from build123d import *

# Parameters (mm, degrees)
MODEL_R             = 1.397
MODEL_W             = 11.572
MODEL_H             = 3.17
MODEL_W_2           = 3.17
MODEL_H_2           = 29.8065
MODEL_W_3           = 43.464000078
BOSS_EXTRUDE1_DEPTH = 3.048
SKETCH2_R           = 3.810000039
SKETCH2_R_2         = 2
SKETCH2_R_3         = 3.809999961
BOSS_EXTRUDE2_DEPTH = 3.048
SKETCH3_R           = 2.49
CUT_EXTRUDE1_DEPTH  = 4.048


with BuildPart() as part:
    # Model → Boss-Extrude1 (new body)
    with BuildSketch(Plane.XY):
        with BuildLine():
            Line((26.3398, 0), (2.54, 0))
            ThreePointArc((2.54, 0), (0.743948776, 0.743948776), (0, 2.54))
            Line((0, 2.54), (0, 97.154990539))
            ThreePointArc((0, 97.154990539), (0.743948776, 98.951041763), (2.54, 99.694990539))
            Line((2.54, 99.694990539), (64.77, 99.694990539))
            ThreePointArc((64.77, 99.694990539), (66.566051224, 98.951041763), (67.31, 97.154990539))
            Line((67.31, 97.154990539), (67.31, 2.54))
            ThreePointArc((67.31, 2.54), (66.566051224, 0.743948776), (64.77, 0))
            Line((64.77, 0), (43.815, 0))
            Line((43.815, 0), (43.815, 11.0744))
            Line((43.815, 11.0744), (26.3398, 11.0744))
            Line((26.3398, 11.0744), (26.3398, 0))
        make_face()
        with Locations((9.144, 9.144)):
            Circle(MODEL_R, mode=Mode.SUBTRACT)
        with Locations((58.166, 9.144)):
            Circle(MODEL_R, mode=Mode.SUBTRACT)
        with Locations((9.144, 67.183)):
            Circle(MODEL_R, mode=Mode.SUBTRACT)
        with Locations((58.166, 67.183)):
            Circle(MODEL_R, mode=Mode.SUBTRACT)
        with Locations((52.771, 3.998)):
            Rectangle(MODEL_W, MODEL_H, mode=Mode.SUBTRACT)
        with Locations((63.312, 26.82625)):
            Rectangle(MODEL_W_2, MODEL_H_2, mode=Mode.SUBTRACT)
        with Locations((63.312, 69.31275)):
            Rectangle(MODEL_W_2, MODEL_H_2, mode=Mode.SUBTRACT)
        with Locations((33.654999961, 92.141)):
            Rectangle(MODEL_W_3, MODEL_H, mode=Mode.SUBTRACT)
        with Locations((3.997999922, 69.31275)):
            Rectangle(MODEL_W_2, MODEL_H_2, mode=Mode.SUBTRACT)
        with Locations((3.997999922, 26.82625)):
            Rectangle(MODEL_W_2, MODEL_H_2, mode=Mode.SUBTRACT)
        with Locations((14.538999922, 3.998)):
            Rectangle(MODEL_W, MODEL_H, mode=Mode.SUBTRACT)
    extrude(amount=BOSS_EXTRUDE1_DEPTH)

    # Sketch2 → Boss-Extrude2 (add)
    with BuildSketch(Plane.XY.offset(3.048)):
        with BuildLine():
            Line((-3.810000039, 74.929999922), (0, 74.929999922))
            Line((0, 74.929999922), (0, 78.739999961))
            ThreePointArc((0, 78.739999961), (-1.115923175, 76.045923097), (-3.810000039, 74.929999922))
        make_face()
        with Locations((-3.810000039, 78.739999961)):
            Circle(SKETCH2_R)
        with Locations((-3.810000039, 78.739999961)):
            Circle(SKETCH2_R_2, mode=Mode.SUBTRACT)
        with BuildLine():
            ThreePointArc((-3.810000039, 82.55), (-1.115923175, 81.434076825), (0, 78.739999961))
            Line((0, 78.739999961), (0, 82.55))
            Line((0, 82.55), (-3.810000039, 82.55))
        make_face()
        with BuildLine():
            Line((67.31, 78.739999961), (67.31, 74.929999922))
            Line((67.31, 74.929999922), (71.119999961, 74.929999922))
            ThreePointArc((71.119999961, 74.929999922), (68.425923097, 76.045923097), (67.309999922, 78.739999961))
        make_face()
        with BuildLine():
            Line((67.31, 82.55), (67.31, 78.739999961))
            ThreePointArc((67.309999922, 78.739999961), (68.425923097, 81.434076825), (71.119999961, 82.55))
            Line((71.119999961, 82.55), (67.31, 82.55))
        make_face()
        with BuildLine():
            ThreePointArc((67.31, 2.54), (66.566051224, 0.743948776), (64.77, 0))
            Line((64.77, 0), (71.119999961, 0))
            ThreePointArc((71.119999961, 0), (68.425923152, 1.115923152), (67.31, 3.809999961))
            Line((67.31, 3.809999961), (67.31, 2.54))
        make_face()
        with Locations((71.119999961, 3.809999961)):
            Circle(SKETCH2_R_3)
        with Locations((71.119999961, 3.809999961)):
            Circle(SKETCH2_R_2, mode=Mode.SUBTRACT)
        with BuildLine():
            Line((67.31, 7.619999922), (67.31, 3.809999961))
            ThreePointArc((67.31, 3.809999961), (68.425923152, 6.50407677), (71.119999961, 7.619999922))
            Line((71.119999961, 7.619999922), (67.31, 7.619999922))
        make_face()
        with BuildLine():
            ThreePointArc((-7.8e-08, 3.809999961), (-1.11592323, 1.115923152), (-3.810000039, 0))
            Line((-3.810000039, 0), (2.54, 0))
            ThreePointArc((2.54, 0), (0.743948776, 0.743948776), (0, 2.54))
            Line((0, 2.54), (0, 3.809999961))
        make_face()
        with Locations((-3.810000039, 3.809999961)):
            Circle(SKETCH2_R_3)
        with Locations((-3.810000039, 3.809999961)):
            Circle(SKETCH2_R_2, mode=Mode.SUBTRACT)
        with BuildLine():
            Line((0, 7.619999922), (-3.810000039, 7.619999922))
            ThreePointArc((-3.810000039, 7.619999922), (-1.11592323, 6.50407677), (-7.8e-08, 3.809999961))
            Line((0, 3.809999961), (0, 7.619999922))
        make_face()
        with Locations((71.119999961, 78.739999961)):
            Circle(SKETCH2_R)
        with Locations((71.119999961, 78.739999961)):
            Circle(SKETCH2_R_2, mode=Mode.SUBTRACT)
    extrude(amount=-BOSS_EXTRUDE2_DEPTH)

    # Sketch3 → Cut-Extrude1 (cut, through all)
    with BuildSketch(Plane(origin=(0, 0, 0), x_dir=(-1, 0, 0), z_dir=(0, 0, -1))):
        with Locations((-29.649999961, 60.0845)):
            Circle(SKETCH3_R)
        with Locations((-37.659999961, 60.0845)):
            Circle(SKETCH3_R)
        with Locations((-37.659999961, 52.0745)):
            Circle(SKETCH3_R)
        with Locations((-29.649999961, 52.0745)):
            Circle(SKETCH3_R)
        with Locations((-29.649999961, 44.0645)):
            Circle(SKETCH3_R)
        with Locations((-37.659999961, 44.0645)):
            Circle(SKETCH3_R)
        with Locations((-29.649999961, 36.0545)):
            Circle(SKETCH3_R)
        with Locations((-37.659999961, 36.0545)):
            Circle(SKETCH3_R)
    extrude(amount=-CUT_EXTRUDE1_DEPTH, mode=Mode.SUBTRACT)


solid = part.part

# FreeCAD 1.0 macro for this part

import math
import FreeCAD as App
import Part
import Sketcher

V = App.Vector
Q = App.Units.Quantity

doc = App.newDocument("Part")
body = doc.addObject("PartDesign::Body", "Body")

sketch1 = body.newObject("Sketcher::SketchObject", "Sketch")
sketch1.AttachmentSupport = (doc.getObject("XY_Plane"), [""])
sketch1.MapMode = "FlatFace"
sketch1.addGeometry([
    Part.LineSegment(V(2.5, 0, 0), V(26.3, 0, 0)),
    Part.LineSegment(V(26.3, 0, 0), V(26.3, 11.1, 0)),
    Part.LineSegment(V(26.3, 11.1, 0), V(43.8, 11.1, 0)),
    Part.LineSegment(V(43.8, 11.1, 0), V(43.8, 0, 0)),
    Part.LineSegment(V(43.8, 0, 0), V(64.8, 0, 0)),
    Part.ArcOfCircle(Part.Circle(V(64.8, 2.5, 0), V(0, 0, 1), 2.5), math.radians(-90), math.radians(0)),
    Part.LineSegment(V(67.3, 2.5, 0), V(67.3, 97.2, 0)),
    Part.ArcOfCircle(Part.Circle(V(64.8, 97.2, 0), V(0, 0, 1), 2.5), math.radians(0), math.radians(90)),
    Part.LineSegment(V(64.8, 99.7, 0), V(2.5, 99.7, 0)),
    Part.ArcOfCircle(Part.Circle(V(2.5, 97.2, 0), V(0, 0, 1), 2.5), math.radians(90), math.radians(180)),
    Part.LineSegment(V(0, 97.2, 0), V(0, 2.5, 0)),
    Part.ArcOfCircle(Part.Circle(V(2.5, 2.5, 0), V(0, 0, 1), 2.5), math.radians(-180), math.radians(-90)),
    Part.Circle(V(58.2, 9.1, 0), V(0, 0, 1), 1.4),
    Part.LineSegment(V(47, 2.4, 0), V(47, 5.6, 0)),
    Part.LineSegment(V(47, 5.6, 0), V(58.6, 5.6, 0)),
    Part.LineSegment(V(58.6, 5.6, 0), V(58.6, 2.4, 0)),
    Part.LineSegment(V(58.6, 2.4, 0), V(47, 2.4, 0)),
    Part.LineSegment(V(61.7, 11.9, 0), V(61.7, 41.7, 0)),
    Part.LineSegment(V(61.7, 41.7, 0), V(64.9, 41.7, 0)),
    Part.LineSegment(V(64.9, 41.7, 0), V(64.9, 11.9, 0)),
    Part.LineSegment(V(64.9, 11.9, 0), V(61.7, 11.9, 0)),
    Part.LineSegment(V(8.8, 2.4, 0), V(8.8, 5.6, 0)),
    Part.LineSegment(V(8.8, 5.6, 0), V(20.3, 5.6, 0)),
    Part.LineSegment(V(20.3, 5.6, 0), V(20.3, 2.4, 0)),
    Part.LineSegment(V(20.3, 2.4, 0), V(8.8, 2.4, 0)),
    Part.Circle(V(9.1, 9.1, 0), V(0, 0, 1), 1.4),
    Part.LineSegment(V(2.4, 11.9, 0), V(2.4, 41.7, 0)),
    Part.LineSegment(V(2.4, 41.7, 0), V(5.6, 41.7, 0)),
    Part.LineSegment(V(5.6, 41.7, 0), V(5.6, 11.9, 0)),
    Part.LineSegment(V(5.6, 11.9, 0), V(2.4, 11.9, 0)),
    Part.LineSegment(V(61.7, 54.4, 0), V(61.7, 84.2, 0)),
    Part.LineSegment(V(61.7, 84.2, 0), V(64.9, 84.2, 0)),
    Part.LineSegment(V(64.9, 84.2, 0), V(64.9, 54.4, 0)),
    Part.LineSegment(V(64.9, 54.4, 0), V(61.7, 54.4, 0)),
    Part.Circle(V(58.2, 67.2, 0), V(0, 0, 1), 1.4),
    Part.LineSegment(V(11.9, 90.6, 0), V(11.9, 93.7, 0)),
    Part.LineSegment(V(11.9, 93.7, 0), V(55.4, 93.7, 0)),
    Part.LineSegment(V(55.4, 93.7, 0), V(55.4, 90.6, 0)),
    Part.LineSegment(V(55.4, 90.6, 0), V(11.9, 90.6, 0)),
    Part.Circle(V(9.1, 67.2, 0), V(0, 0, 1), 1.4),
    Part.LineSegment(V(2.4, 54.4, 0), V(2.4, 84.2, 0)),
    Part.LineSegment(V(2.4, 84.2, 0), V(5.6, 84.2, 0)),
    Part.LineSegment(V(5.6, 84.2, 0), V(5.6, 54.4, 0)),
    Part.LineSegment(V(5.6, 54.4, 0), V(2.4, 54.4, 0)),
], False)
sketch1.addConstraint([
    Sketcher.Constraint("Coincident", 0, 2, 1, 1),
    Sketcher.Constraint("Coincident", 1, 2, 2, 1),
    Sketcher.Constraint("Coincident", 2, 2, 3, 1),
    Sketcher.Constraint("Coincident", 3, 2, 4, 1),
    Sketcher.Constraint("Tangent", 4, 2, 5, 1),
    Sketcher.Constraint("Tangent", 5, 2, 6, 1),
    Sketcher.Constraint("Tangent", 6, 2, 7, 1),
    Sketcher.Constraint("Tangent", 7, 2, 8, 1),
    Sketcher.Constraint("Tangent", 8, 2, 9, 1),
    Sketcher.Constraint("Tangent", 9, 2, 10, 1),
    Sketcher.Constraint("Tangent", 10, 2, 11, 1),
    Sketcher.Constraint("Tangent", 11, 2, 0, 1),
    Sketcher.Constraint("Coincident", 13, 2, 14, 1),
    Sketcher.Constraint("Coincident", 14, 2, 15, 1),
    Sketcher.Constraint("Coincident", 15, 2, 16, 1),
    Sketcher.Constraint("Coincident", 16, 2, 13, 1),
    Sketcher.Constraint("Coincident", 17, 2, 18, 1),
    Sketcher.Constraint("Coincident", 18, 2, 19, 1),
    Sketcher.Constraint("Coincident", 19, 2, 20, 1),
    Sketcher.Constraint("Coincident", 20, 2, 17, 1),
    Sketcher.Constraint("Coincident", 21, 2, 22, 1),
    Sketcher.Constraint("Coincident", 22, 2, 23, 1),
    Sketcher.Constraint("Coincident", 23, 2, 24, 1),
    Sketcher.Constraint("Coincident", 24, 2, 21, 1),
    Sketcher.Constraint("Coincident", 26, 2, 27, 1),
    Sketcher.Constraint("Coincident", 27, 2, 28, 1),
    Sketcher.Constraint("Coincident", 28, 2, 29, 1),
    Sketcher.Constraint("Coincident", 29, 2, 26, 1),
    Sketcher.Constraint("Coincident", 30, 2, 31, 1),
    Sketcher.Constraint("Coincident", 31, 2, 32, 1),
    Sketcher.Constraint("Coincident", 32, 2, 33, 1),
    Sketcher.Constraint("Coincident", 33, 2, 30, 1),
    Sketcher.Constraint("Coincident", 35, 2, 36, 1),
    Sketcher.Constraint("Coincident", 36, 2, 37, 1),
    Sketcher.Constraint("Coincident", 37, 2, 38, 1),
    Sketcher.Constraint("Coincident", 38, 2, 35, 1),
    Sketcher.Constraint("Coincident", 40, 2, 41, 1),
    Sketcher.Constraint("Coincident", 41, 2, 42, 1),
    Sketcher.Constraint("Coincident", 42, 2, 43, 1),
    Sketcher.Constraint("Coincident", 43, 2, 40, 1),
    Sketcher.Constraint("Horizontal", 0),
    Sketcher.Constraint("Vertical", 1),
    Sketcher.Constraint("Horizontal", 2),
    Sketcher.Constraint("Vertical", 3),
    Sketcher.Constraint("Horizontal", 4),
    Sketcher.Constraint("Vertical", 6),
    Sketcher.Constraint("Horizontal", 8),
    Sketcher.Constraint("Vertical", 10),
    Sketcher.Constraint("Vertical", 13),
    Sketcher.Constraint("Horizontal", 14),
    Sketcher.Constraint("Vertical", 15),
    Sketcher.Constraint("Horizontal", 16),
    Sketcher.Constraint("Vertical", 17),
    Sketcher.Constraint("Horizontal", 18),
    Sketcher.Constraint("Vertical", 19),
    Sketcher.Constraint("Horizontal", 20),
    Sketcher.Constraint("Vertical", 21),
    Sketcher.Constraint("Horizontal", 22),
    Sketcher.Constraint("Vertical", 23),
    Sketcher.Constraint("Horizontal", 24),
    Sketcher.Constraint("Vertical", 26),
    Sketcher.Constraint("Horizontal", 27),
    Sketcher.Constraint("Vertical", 28),
    Sketcher.Constraint("Horizontal", 29),
    Sketcher.Constraint("Vertical", 30),
    Sketcher.Constraint("Horizontal", 31),
    Sketcher.Constraint("Vertical", 32),
    Sketcher.Constraint("Horizontal", 33),
    Sketcher.Constraint("Vertical", 35),
    Sketcher.Constraint("Horizontal", 36),
    Sketcher.Constraint("Vertical", 37),
    Sketcher.Constraint("Horizontal", 38),
    Sketcher.Constraint("Vertical", 40),
    Sketcher.Constraint("Horizontal", 41),
    Sketcher.Constraint("Vertical", 42),
    Sketcher.Constraint("Horizontal", 43),
    Sketcher.Constraint("Equal", 5, 7),
    Sketcher.Constraint("Equal", 7, 9),
    Sketcher.Constraint("Equal", 9, 11),
    Sketcher.Constraint("Equal", 12, 25),
    Sketcher.Constraint("Equal", 25, 34),
    Sketcher.Constraint("Equal", 34, 39),
    Sketcher.Constraint("PointOnObject", 0, 2, -1),
    Sketcher.Constraint("PointOnObject", 3, 2, -1),
    Sketcher.Constraint("PointOnObject", 9, 2, -2),
    Sketcher.Constraint("Horizontal", 12, 3, 25, 3),
    Sketcher.Constraint("Horizontal", 34, 3, 39, 3),
    Sketcher.Constraint("Horizontal", 14, 2, 21, 2),
    Sketcher.Constraint("Horizontal", 16, 2, 23, 2),
    Sketcher.Constraint("Horizontal", 18, 2, 26, 2),
    Sketcher.Constraint("Horizontal", 20, 2, 28, 2),
    Sketcher.Constraint("Horizontal", 31, 2, 40, 2),
    Sketcher.Constraint("Horizontal", 33, 2, 42, 2),
    Sketcher.Constraint("Vertical", 12, 3, 34, 3),
    Sketcher.Constraint("Vertical", 25, 3, 39, 3),
    Sketcher.Constraint("Vertical", 20, 2, 30, 2),
    Sketcher.Constraint("Vertical", 19, 2, 31, 2),
    Sketcher.Constraint("Vertical", 29, 2, 40, 2),
    Sketcher.Constraint("Vertical", 28, 2, 41, 2),
    Sketcher.Constraint("Equal", 16, 22),
    Sketcher.Constraint("Equal", 20, 27),
    Sketcher.Constraint("Equal", 43, 13),
    Sketcher.Constraint("Equal", 28, 30),
    Sketcher.Constraint("Equal", 23, 35),
    Sketcher.Constraint("Radius", 5, Q("0.1 in")),
    Sketcher.Constraint("Diameter", 12, Q("0.11 in")),
    Sketcher.Constraint("DistanceX", 8, 2, 8, 1, Q("2.45 in")),
    Sketcher.Constraint("DistanceX", 0, 1, 0, 2, Q("0.937 in")),
    Sketcher.Constraint("DistanceX", 2, 1, 2, 2, Q("0.688 in")),
    Sketcher.Constraint("DistanceY", 1, 1, 1, 2, Q("0.436 in")),
    Sketcher.Constraint("DistanceX", -1, 1, 12, 3, Q("2.29 in")),
    Sketcher.Constraint("DistanceY", -1, 1, 12, 3, Q("0.36 in")),
    Sketcher.Constraint("DistanceX", -1, 1, 25, 3, Q("0.36 in")),
    Sketcher.Constraint("DistanceY", -1, 1, 35, 2, Q("3.69 in")),
    Sketcher.Constraint("DistanceX", 2, 2, 18, 2, Q("0.83 in")),
    Sketcher.Constraint("DistanceY", -1, 1, 34, 3, Q("2.645 in")),
    Sketcher.Constraint("DistanceY", -1, 1, 15, 2, Q("0.095 in")),
    Sketcher.Constraint("DistanceX", -1, 1, 26, 2, Q("0.095 in")),
    Sketcher.Constraint("DistanceX", 14, 1, 14, 2, 11.572),
    Sketcher.Constraint("DistanceX", 18, 1, 18, 2, 3.17),
    Sketcher.Constraint("DistanceX", 36, 1, 36, 2, 43.464),
    Sketcher.Constraint("DistanceY", 17, 1, 17, 2, 29.8065),
    Sketcher.Constraint("DistanceY", 6, 1, 6, 2, 94.614991),
    Sketcher.Constraint("DistanceX", -1, 1, 13, 2, 46.985),
    Sketcher.Constraint("DistanceY", -1, 1, 17, 2, 41.7295),
    Sketcher.Constraint("DistanceX", -1, 1, 21, 2, 8.753),
    Sketcher.Constraint("DistanceY", -1, 1, 30, 2, 84.216),
    Sketcher.Constraint("DistanceX", -1, 1, 35, 2, 11.923),
])
pad1 = body.newObject("PartDesign::Pad", "Pad")
pad1.Profile = sketch1
pad1.Length = Q("0.12 in")

sketch2 = body.newObject("Sketcher::SketchObject", "Sketch001")
sketch2.AttachmentSupport = (doc.getObject("XY_Plane"), [""])
sketch2.MapMode = "FlatFace"
sketch2.AttachmentOffset = App.Placement(V(0, 0, 0.12 * 25.4), App.Rotation())
sketch2.addGeometry([
    Part.LineSegment(V(-3.8, 74.9, 0), V(0, 74.9, 0)),
    Part.LineSegment(V(0, 74.9, 0), V(0, 82.5, 0)),
    Part.LineSegment(V(0, 82.5, 0), V(-3.8, 82.5, 0)),
    Part.ArcOfCircle(Part.Circle(V(-3.8, 78.7, 0), V(0, 0, 1), 3.8), math.radians(90), math.radians(270)),
    Part.Circle(V(-3.8, 78.7, 0), V(0, 0, 1), 2),
    Part.LineSegment(V(67.3, 74.9, 0), V(71.1, 74.9, 0)),
    Part.ArcOfCircle(Part.Circle(V(71.1, 78.7, 0), V(0, 0, 1), 3.8), math.radians(-90), math.radians(90)),
    Part.LineSegment(V(71.1, 82.5, 0), V(67.3, 82.5, 0)),
    Part.LineSegment(V(67.3, 82.5, 0), V(67.3, 74.9, 0)),
    Part.Circle(V(71.1, 78.7, 0), V(0, 0, 1), 2),
    Part.ArcOfCircle(Part.Circle(V(64.8, 2.5, 0), V(0, 0, 1), 2.5), math.radians(-90), math.radians(0)),
    Part.LineSegment(V(64.8, 0, 0), V(71.1, 0, 0)),
    Part.ArcOfCircle(Part.Circle(V(71.1, 3.8, 0), V(0, 0, 1), 3.8), math.radians(-90), math.radians(90)),
    Part.LineSegment(V(71.1, 7.6, 0), V(67.3, 7.6, 0)),
    Part.LineSegment(V(67.3, 7.6, 0), V(67.3, 2.5, 0)),
    Part.Circle(V(71.1, 3.8, 0), V(0, 0, 1), 2),
    Part.LineSegment(V(-3.8, 0, 0), V(2.5, 0, 0)),
    Part.ArcOfCircle(Part.Circle(V(2.5, 2.5, 0), V(0, 0, 1), 2.5), math.radians(-180), math.radians(-90)),
    Part.LineSegment(V(0, 2.5, 0), V(0, 7.6, 0)),
    Part.LineSegment(V(0, 7.6, 0), V(-3.8, 7.6, 0)),
    Part.ArcOfCircle(Part.Circle(V(-3.8, 3.8, 0), V(0, 0, 1), 3.8), math.radians(90), math.radians(270)),
    Part.Circle(V(-3.8, 3.8, 0), V(0, 0, 1), 2),
], False)
sketch2.addConstraint([
    Sketcher.Constraint("Coincident", 0, 2, 1, 1),
    Sketcher.Constraint("Coincident", 1, 2, 2, 1),
    Sketcher.Constraint("Tangent", 2, 2, 3, 1),
    Sketcher.Constraint("Tangent", 3, 2, 0, 1),
    Sketcher.Constraint("Tangent", 5, 2, 6, 1),
    Sketcher.Constraint("Tangent", 6, 2, 7, 1),
    Sketcher.Constraint("Coincident", 7, 2, 8, 1),
    Sketcher.Constraint("Coincident", 8, 2, 5, 1),
    Sketcher.Constraint("Tangent", 10, 1, 11, 1),
    Sketcher.Constraint("Tangent", 11, 2, 12, 1),
    Sketcher.Constraint("Tangent", 12, 2, 13, 1),
    Sketcher.Constraint("Coincident", 13, 2, 14, 1),
    Sketcher.Constraint("Tangent", 14, 2, 10, 2),
    Sketcher.Constraint("Tangent", 16, 2, 17, 2),
    Sketcher.Constraint("Tangent", 17, 1, 18, 1),
    Sketcher.Constraint("Coincident", 18, 2, 19, 1),
    Sketcher.Constraint("Tangent", 19, 2, 20, 1),
    Sketcher.Constraint("Tangent", 20, 2, 16, 1),
    Sketcher.Constraint("Horizontal", 0),
    Sketcher.Constraint("Vertical", 1),
    Sketcher.Constraint("Horizontal", 2),
    Sketcher.Constraint("Horizontal", 5),
    Sketcher.Constraint("Horizontal", 7),
    Sketcher.Constraint("Vertical", 8),
    Sketcher.Constraint("Horizontal", 11),
    Sketcher.Constraint("Horizontal", 13),
    Sketcher.Constraint("Vertical", 14),
    Sketcher.Constraint("Horizontal", 16),
    Sketcher.Constraint("Vertical", 18),
    Sketcher.Constraint("Horizontal", 19),
    Sketcher.Constraint("Coincident", 4, 3, 3, 3),
    Sketcher.Constraint("Coincident", 9, 3, 6, 3),
    Sketcher.Constraint("Coincident", 15, 3, 12, 3),
    Sketcher.Constraint("Coincident", 21, 3, 20, 3),
    Sketcher.Constraint("Equal", 3, 6),
    Sketcher.Constraint("Equal", 4, 9),
    Sketcher.Constraint("Equal", 6, 12),
    Sketcher.Constraint("Equal", 9, 15),
    Sketcher.Constraint("Equal", 10, 17),
    Sketcher.Constraint("Equal", 12, 20),
    Sketcher.Constraint("Equal", 15, 21),
    Sketcher.Constraint("PointOnObject", 0, 2, -2),
    Sketcher.Constraint("PointOnObject", 10, 1, -1),
    Sketcher.Constraint("PointOnObject", 16, 2, -1),
    Sketcher.Constraint("PointOnObject", 17, 1, -2),
    Sketcher.Constraint("Horizontal", 4, 3, 6, 3),
    Sketcher.Constraint("Vertical", 9, 3, 12, 3),
    Sketcher.Constraint("Vertical", 4, 3, 20, 3),
    Sketcher.Constraint("Vertical", 8, 2, 13, 2),
    Sketcher.Constraint("Equal", 2, 5),
    Sketcher.Constraint("Radius", 10, Q("0.1 in")),
    Sketcher.Constraint("Radius", 3, Q("0.15 in")),
    Sketcher.Constraint("DistanceY", 10, 3, 6, 3, Q("3 in")),
    Sketcher.Constraint("DistanceX", 0, 1, 0, 2, Q("0.15 in")),
    Sketcher.Constraint("DistanceX", -1, 1, 6, 3, Q("2.8 in")),
    Sketcher.Constraint("Diameter", 4, 4.0),
])
pad2 = body.newObject("PartDesign::Pad", "Pad001")
pad2.Profile = sketch2
pad2.Length = Q("0.12 in")
pad2.Reversed = True

sketch3 = body.newObject("Sketcher::SketchObject", "Sketch002")
sketch3.AttachmentSupport = (doc.getObject("XY_Plane"), [""])
sketch3.MapMode = "FlatFace"
sketch3.addGeometry([
    Part.Circle(V(29.6, 60.1, 0), V(0, 0, 1), 2.5),
    Part.Circle(V(37.7, 60.1, 0), V(0, 0, 1), 2.5),
    Part.Circle(V(37.7, 52.1, 0), V(0, 0, 1), 2.5),
    Part.Circle(V(29.6, 52.1, 0), V(0, 0, 1), 2.5),
    Part.Circle(V(29.6, 44.1, 0), V(0, 0, 1), 2.5),
    Part.Circle(V(37.7, 44.1, 0), V(0, 0, 1), 2.5),
    Part.Circle(V(29.6, 36.1, 0), V(0, 0, 1), 2.5),
    Part.Circle(V(37.7, 36.1, 0), V(0, 0, 1), 2.5),
], False)
sketch3.addConstraint([
    Sketcher.Constraint("Equal", 0, 1),
    Sketcher.Constraint("Equal", 1, 2),
    Sketcher.Constraint("Equal", 2, 3),
    Sketcher.Constraint("Equal", 3, 4),
    Sketcher.Constraint("Equal", 4, 5),
    Sketcher.Constraint("Equal", 5, 6),
    Sketcher.Constraint("Equal", 6, 7),
    Sketcher.Constraint("Horizontal", 0, 3, 1, 3),
    Sketcher.Constraint("Horizontal", 2, 3, 3, 3),
    Sketcher.Constraint("Horizontal", 4, 3, 5, 3),
    Sketcher.Constraint("Horizontal", 6, 3, 7, 3),
    Sketcher.Constraint("Vertical", 1, 3, 2, 3),
    Sketcher.Constraint("Vertical", 0, 3, 3, 3),
    Sketcher.Constraint("Vertical", 3, 3, 4, 3),
    Sketcher.Constraint("Vertical", 2, 3, 5, 3),
    Sketcher.Constraint("Vertical", 4, 3, 6, 3),
    Sketcher.Constraint("Vertical", 5, 3, 7, 3),
    Sketcher.Constraint("Diameter", 0, 4.98),
    Sketcher.Constraint("DistanceX", -1, 1, 0, 3, 29.65),
    Sketcher.Constraint("DistanceY", -1, 1, 0, 3, 60.0845),
    Sketcher.Constraint("DistanceX", -1, 1, 1, 3, 37.66),
    Sketcher.Constraint("DistanceY", -1, 1, 2, 3, 52.0745),
    Sketcher.Constraint("DistanceY", -1, 1, 4, 3, 44.0645),
    Sketcher.Constraint("DistanceY", -1, 1, 6, 3, 36.0545),
])
pocket1 = body.newObject("PartDesign::Pocket", "Pocket")
pocket1.Profile = sketch3
pocket1.Type = "ThroughAll"
pocket1.Reversed = True

doc.recompute()
